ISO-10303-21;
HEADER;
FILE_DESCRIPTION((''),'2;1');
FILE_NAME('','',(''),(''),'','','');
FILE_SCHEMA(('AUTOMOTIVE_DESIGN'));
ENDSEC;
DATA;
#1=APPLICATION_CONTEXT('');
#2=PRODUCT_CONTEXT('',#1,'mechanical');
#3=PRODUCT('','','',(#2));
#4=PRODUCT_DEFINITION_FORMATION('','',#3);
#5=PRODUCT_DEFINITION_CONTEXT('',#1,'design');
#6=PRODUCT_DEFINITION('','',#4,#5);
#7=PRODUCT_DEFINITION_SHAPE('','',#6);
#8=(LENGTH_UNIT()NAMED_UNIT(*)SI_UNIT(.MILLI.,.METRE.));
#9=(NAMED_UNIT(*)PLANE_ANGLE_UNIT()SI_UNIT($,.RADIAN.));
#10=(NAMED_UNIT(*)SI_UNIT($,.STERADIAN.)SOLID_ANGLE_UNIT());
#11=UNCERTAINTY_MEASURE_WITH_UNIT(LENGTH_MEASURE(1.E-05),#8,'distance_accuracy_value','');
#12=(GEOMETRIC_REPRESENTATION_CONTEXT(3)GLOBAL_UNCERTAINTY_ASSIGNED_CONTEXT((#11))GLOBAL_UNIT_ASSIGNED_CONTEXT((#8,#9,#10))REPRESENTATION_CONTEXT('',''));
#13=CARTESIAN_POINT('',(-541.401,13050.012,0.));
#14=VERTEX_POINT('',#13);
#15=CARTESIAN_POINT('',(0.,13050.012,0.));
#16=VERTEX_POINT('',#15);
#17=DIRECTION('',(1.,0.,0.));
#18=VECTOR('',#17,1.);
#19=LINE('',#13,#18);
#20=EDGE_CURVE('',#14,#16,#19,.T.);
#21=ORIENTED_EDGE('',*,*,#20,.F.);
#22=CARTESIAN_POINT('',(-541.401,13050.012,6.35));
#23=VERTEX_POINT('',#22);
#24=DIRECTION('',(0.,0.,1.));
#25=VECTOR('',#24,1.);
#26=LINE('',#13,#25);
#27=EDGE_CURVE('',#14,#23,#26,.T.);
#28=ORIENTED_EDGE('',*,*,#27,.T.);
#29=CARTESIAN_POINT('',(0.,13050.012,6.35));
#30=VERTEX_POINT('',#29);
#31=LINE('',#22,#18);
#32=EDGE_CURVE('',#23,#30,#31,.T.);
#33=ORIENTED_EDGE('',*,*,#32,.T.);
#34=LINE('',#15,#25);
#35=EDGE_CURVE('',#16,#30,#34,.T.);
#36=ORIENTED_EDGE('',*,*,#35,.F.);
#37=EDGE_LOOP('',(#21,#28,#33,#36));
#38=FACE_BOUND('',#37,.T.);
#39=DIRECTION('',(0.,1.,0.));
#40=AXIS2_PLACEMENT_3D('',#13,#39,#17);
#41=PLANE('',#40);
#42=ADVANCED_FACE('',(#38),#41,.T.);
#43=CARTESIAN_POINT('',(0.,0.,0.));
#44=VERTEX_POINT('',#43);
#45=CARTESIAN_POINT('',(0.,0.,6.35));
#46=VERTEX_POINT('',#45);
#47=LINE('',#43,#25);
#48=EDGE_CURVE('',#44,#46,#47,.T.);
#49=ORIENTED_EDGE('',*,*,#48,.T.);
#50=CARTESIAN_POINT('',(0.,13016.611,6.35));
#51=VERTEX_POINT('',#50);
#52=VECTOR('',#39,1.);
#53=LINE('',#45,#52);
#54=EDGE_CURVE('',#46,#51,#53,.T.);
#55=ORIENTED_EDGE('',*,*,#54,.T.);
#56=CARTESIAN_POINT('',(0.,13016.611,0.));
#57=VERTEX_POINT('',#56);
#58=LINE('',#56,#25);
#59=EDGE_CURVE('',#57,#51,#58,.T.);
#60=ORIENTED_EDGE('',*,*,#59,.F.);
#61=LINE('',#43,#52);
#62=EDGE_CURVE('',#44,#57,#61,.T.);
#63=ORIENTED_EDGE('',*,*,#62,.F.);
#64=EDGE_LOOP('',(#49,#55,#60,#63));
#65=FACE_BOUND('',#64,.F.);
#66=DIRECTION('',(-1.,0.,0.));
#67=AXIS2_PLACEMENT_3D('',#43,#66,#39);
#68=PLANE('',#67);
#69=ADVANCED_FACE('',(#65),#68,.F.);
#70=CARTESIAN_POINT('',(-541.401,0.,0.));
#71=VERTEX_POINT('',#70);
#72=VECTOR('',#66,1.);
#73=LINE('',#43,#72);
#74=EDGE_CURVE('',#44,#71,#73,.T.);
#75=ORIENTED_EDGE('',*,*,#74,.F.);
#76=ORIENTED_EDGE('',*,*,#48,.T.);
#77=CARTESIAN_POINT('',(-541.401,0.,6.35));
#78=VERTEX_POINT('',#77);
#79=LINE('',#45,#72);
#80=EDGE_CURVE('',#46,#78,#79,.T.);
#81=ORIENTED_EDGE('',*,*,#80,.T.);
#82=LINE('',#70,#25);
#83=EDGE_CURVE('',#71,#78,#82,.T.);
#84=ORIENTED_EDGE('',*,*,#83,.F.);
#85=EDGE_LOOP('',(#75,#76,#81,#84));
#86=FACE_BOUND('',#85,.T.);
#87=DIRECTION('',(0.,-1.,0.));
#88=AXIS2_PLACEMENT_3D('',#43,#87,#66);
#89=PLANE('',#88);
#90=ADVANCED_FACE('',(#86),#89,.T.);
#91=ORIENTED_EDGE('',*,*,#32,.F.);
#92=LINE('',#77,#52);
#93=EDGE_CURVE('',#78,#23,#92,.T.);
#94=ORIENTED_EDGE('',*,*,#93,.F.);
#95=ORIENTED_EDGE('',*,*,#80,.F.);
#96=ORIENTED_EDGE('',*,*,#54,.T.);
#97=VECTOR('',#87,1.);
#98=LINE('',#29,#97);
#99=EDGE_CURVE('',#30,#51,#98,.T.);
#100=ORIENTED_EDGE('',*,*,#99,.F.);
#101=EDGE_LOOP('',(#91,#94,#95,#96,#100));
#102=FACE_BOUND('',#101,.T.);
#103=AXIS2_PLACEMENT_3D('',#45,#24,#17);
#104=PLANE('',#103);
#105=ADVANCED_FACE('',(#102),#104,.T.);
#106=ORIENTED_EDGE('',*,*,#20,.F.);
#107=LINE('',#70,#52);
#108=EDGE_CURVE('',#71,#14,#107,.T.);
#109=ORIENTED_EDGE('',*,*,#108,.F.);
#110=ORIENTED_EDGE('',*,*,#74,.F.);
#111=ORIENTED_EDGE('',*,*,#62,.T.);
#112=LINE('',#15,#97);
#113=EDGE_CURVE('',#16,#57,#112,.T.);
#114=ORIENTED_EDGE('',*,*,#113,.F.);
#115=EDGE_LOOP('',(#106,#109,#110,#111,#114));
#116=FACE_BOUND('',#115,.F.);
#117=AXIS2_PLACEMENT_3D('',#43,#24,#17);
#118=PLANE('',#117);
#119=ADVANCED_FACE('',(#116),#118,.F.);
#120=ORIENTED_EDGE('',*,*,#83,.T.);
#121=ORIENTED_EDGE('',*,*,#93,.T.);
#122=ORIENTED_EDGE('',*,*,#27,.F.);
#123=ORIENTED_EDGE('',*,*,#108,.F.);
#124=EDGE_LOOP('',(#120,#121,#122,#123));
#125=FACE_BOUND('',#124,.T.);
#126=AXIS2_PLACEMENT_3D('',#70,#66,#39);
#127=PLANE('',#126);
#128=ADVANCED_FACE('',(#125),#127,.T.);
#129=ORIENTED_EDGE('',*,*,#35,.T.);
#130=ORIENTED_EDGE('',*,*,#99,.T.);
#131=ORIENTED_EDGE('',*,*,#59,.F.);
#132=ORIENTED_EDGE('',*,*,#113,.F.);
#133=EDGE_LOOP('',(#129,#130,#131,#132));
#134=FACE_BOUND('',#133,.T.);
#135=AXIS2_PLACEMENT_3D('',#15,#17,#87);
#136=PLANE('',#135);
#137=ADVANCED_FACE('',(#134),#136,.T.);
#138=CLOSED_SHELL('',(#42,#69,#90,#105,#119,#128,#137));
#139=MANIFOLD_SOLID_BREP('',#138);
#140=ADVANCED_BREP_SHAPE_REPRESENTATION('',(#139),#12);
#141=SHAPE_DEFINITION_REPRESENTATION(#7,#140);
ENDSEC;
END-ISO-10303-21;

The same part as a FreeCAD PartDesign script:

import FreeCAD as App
import Part
import Sketcher
from FreeCAD import Vector
Q = App.Units.Quantity


def add_polygon(sketch, points):
    """Adds a closed chain of lines whose ends are joined by coincident constraints."""
    first, n = sketch.GeometryCount, len(points)
    for a, b in zip(points, points[1:] + points[:1]):
        sketch.addGeometry(Part.LineSegment(App.Vector(*a, 0), App.Vector(*b, 0)), False)
    for i in range(n):
        sketch.addConstraint(Sketcher.Constraint("Coincident", first + i, 2, first + (i + 1) % n, 1))

doc = App.newDocument("Part")
body = doc.addObject("PartDesign::Body", "Body")

sketch1 = body.newObject("Sketcher::SketchObject", "Sketch")
sketch1.AttachmentSupport = (doc.getObject("XY_Plane"), [""])
sketch1.MapMode = "FlatFace"
add_polygon(sketch1, [(-541, 0), (0, 0), (0, 13050), (-541, 13050)])
sketch1.addConstraint(Sketcher.Constraint("Horizontal", 0))
sketch1.addConstraint(Sketcher.Constraint("Vertical", 1))
sketch1.addConstraint(Sketcher.Constraint("Horizontal", 2))
sketch1.addConstraint(Sketcher.Constraint("Vertical", 3))
sketch1.addConstraint(Sketcher.Constraint("Coincident", 0, 2, -1, 1))
sketch1.addConstraint(Sketcher.Constraint("DistanceY", 1, 1, 1, 2, Q("513.78 in")))
sketch1.addConstraint(Sketcher.Constraint("DistanceX", 0, 1, 0, 2, Q("21.315 in")))
pad1 = body.newObject("PartDesign::Pad", "Pad")
pad1.Profile = sketch1
pad1.Length = Q("0.25 in")

doc.recompute()
